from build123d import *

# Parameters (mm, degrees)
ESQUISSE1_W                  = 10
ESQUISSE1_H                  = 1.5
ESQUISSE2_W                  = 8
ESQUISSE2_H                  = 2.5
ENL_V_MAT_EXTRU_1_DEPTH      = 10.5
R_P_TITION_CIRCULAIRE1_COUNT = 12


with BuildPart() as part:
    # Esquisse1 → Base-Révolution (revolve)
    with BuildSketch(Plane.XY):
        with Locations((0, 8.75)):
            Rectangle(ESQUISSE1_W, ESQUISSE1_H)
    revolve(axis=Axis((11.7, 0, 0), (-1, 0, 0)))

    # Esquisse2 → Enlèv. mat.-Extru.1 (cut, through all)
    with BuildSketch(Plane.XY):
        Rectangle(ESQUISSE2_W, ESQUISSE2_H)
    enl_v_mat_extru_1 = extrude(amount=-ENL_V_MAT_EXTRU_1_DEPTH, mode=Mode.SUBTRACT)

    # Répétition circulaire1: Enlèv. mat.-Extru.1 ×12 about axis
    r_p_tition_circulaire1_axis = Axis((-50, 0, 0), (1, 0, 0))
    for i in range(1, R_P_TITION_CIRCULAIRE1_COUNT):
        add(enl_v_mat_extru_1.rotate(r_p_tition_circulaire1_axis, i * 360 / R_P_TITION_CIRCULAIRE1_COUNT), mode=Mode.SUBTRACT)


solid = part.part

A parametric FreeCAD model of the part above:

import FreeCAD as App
import Part
import Sketcher

V = App.Vector
Q = App.Units.Quantity

doc = App.newDocument("Part")
params = doc.addObject("Spreadsheet::Sheet", "Params")
for row, (alias, value) in enumerate([
    ("sketch1_width", "10 mm"),
    ("sketch1_height", "1.5 mm"),
    ("revolution_angle", "360 deg"),
    ("sketch2_width", "8 mm"),
    ("sketch2_height", "2.5 mm"),
], start=1):
    params.set(f"A{row}", alias)
    params.set(f"B{row}", "=" + value)
    params.setAlias(f"B{row}", alias)

body = doc.addObject("PartDesign::Body", "Body")

# Sketch on XY plane
sketch1 = body.newObject("Sketcher::SketchObject", "Sketch")
sketch1.AttachmentSupport = (doc.getObject("XY_Plane"), [""])
sketch1.MapMode = "FlatFace"
sketch1.addGeometry(Part.LineSegment(V(-5, 9.5, 0), V(-5, 8, 0)), False)
sketch1.addGeometry(Part.LineSegment(V(-5, 8, 0), V(5, 8, 0)), False)
sketch1.addGeometry(Part.LineSegment(V(5, 8, 0), V(5, 9.5, 0)), False)
sketch1.addGeometry(Part.LineSegment(V(5, 9.5, 0), V(-5, 9.5, 0)), False)
sketch1.addConstraint(Sketcher.Constraint("Coincident", 0, 2, 1, 1))
sketch1.addConstraint(Sketcher.Constraint("Coincident", 1, 2, 2, 1))
sketch1.addConstraint(Sketcher.Constraint("Coincident", 2, 2, 3, 1))
sketch1.addConstraint(Sketcher.Constraint("Coincident", 3, 2, 0, 1))
sketch1.addConstraint(Sketcher.Constraint("Vertical", 0))
sketch1.addConstraint(Sketcher.Constraint("Horizontal", 1))
sketch1.addConstraint(Sketcher.Constraint("Vertical", 2))
sketch1.addConstraint(Sketcher.Constraint("Horizontal", 3))
sketch1.addConstraint(Sketcher.Constraint("DistanceX", 1, 1, 1, 2, Q("10 mm")))
sketch1.addConstraint(Sketcher.Constraint("DistanceY", 0, 2, 0, 1, Q("1.5 mm")))
sketch1.addConstraint(Sketcher.Constraint("DistanceX", 0, 2, -1, 1, Q("5 mm")))
sketch1.addConstraint(Sketcher.Constraint("DistanceY", -1, 1, 0, 2, Q("8 mm")))
sketch1.setExpression("Constraints[8]", "Params.sketch1_width")
sketch1.setExpression("Constraints[9]", "Params.sketch1_height")
revolution = body.newObject("PartDesign::Revolution", "Revolution")
revolution.Profile = sketch1
revolution.ReferenceAxis = (sketch1, ["H_Axis"])
revolution.setExpression("Angle", "Params.revolution_angle")

# Sketch on XY plane
sketch2 = body.newObject("Sketcher::SketchObject", "Sketch001")
sketch2.AttachmentSupport = (doc.getObject("XY_Plane"), [""])
sketch2.MapMode = "FlatFace"
sketch2.addGeometry(Part.LineSegment(V(-4, 1.2, 0), V(-4, -1.2, 0)), False)
sketch2.addGeometry(Part.LineSegment(V(-4, -1.2, 0), V(4, -1.2, 0)), False)
sketch2.addGeometry(Part.LineSegment(V(4, -1.2, 0), V(4, 1.2, 0)), False)
sketch2.addGeometry(Part.LineSegment(V(4, 1.2, 0), V(-4, 1.2, 0)), False)
sketch2.addConstraint(Sketcher.Constraint("Coincident", 0, 2, 1, 1))
sketch2.addConstraint(Sketcher.Constraint("Coincident", 1, 2, 2, 1))
sketch2.addConstraint(Sketcher.Constraint("Coincident", 2, 2, 3, 1))
sketch2.addConstraint(Sketcher.Constraint("Coincident", 3, 2, 0, 1))
sketch2.addConstraint(Sketcher.Constraint("Vertical", 0))
sketch2.addConstraint(Sketcher.Constraint("Horizontal", 1))
sketch2.addConstraint(Sketcher.Constraint("Vertical", 2))
sketch2.addConstraint(Sketcher.Constraint("Horizontal", 3))
sketch2.addConstraint(Sketcher.Constraint("Symmetric", 0, 2, 2, 2, -1, 1))
sketch2.addConstraint(Sketcher.Constraint("DistanceX", 1, 1, 1, 2, Q("8 mm")))
sketch2.addConstraint(Sketcher.Constraint("DistanceY", 0, 2, 0, 1, Q("2.5 mm")))
sketch2.setExpression("Constraints[9]", "Params.sketch2_width")
sketch2.setExpression("Constraints[10]", "Params.sketch2_height")
pocket1 = body.newObject("PartDesign::Pocket", "Pocket")
pocket1.Profile = sketch2
pocket1.Type = "ThroughAll"
doc.recompute()

polarpattern = body.newObject("PartDesign::PolarPattern", "PolarPattern")
polarpattern.Originals = [pocket1]
polarpattern.Axis = (doc.getObject("X_Axis"), [""])
polarpattern.Angle = 360
polarpattern.Occurrences = 12
body.Tip = polarpattern

doc.recompute()
